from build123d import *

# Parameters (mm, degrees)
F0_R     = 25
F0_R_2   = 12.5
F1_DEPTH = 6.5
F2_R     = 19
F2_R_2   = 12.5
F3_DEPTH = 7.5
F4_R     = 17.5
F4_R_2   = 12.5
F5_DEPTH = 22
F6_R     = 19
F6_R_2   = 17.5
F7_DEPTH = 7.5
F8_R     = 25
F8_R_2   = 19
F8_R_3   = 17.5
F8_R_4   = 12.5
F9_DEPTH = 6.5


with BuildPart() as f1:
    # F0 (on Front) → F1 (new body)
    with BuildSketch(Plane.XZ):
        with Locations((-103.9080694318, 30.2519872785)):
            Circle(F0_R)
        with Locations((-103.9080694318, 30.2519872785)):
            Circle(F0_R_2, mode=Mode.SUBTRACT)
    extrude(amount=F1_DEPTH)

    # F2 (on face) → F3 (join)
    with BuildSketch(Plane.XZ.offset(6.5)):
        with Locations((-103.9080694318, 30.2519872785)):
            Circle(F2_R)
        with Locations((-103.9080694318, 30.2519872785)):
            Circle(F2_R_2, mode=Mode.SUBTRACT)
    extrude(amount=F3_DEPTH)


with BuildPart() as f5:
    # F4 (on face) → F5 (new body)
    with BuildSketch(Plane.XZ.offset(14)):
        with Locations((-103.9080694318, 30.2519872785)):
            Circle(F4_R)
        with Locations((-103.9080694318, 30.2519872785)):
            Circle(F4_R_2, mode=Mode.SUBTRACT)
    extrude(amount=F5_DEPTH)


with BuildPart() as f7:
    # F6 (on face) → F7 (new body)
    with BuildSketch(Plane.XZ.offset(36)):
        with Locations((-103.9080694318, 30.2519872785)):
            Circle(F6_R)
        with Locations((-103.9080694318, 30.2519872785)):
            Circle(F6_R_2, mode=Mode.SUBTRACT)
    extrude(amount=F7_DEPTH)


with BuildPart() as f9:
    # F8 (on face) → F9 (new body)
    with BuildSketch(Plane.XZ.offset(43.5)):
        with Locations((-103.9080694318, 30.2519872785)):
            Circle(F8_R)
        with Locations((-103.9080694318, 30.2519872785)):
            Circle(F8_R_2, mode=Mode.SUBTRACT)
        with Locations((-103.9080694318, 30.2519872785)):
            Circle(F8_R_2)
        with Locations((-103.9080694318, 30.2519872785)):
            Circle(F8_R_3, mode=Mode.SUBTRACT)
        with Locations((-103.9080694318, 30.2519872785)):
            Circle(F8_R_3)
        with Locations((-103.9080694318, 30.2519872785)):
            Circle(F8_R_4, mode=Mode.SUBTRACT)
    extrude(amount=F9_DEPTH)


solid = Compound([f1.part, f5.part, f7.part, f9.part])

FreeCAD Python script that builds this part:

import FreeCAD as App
import Part
import Sketcher
Q = App.Units.Quantity

doc = App.newDocument("Part")
body = doc.addObject("PartDesign::Body", "Body")

sketch1 = body.newObject("Sketcher::SketchObject", "Sketch")
sketch1.AttachmentSupport = (doc.getObject("XZ_Plane"), [""])
sketch1.MapMode = "FlatFace"
sketch1.addGeometry([
    Part.Circle(App.Vector(-104, 30, 0), App.Vector(0, 0, 1), 25),
    Part.Circle(App.Vector(-104, 30, 0), App.Vector(0, 0, 1), 12),
], False)
sketch1.addConstraint([
    Sketcher.Constraint("Coincident", 1, 3, 0, 3),
    Sketcher.Constraint("Diameter", 0, Q("50 mm")),
    Sketcher.Constraint("Diameter", 1, Q("25 mm")),
    Sketcher.Constraint("DistanceX", 0, 3, -1, 1, Q("103.908069 mm")),
    Sketcher.Constraint("DistanceY", -1, 1, 0, 3, Q("30.251987 mm")),
])
pad1 = body.newObject("PartDesign::Pad", "Pad")
pad1.Profile = sketch1
pad1.Length = 6.5

sketch2 = body.newObject("Sketcher::SketchObject", "Sketch001")
sketch2.AttachmentSupport = (doc.getObject("XZ_Plane"), [""])
sketch2.MapMode = "FlatFace"
sketch2.AttachmentOffset = App.Placement(App.Vector(0, 0, 6.5), App.Rotation())
sketch2.addGeometry([
    Part.Circle(App.Vector(-104, 30, 0), App.Vector(0, 0, 1), 19),
    Part.Circle(App.Vector(-104, 30, 0), App.Vector(0, 0, 1), 12),
], False)
sketch2.addConstraint([
    Sketcher.Constraint("Coincident", 1, 3, 0, 3),
    Sketcher.Constraint("Diameter", 0, Q("38 mm")),
    Sketcher.Constraint("Diameter", 1, Q("25 mm")),
    Sketcher.Constraint("DistanceX", 0, 3, -1, 1, Q("103.908069 mm")),
    Sketcher.Constraint("DistanceY", -1, 1, 0, 3, Q("30.251987 mm")),
])
pad2 = body.newObject("PartDesign::Pad", "Pad001")
pad2.Profile = sketch2
pad2.Length = 7.5
body2 = doc.addObject("PartDesign::Body", "Body001")

sketch3 = body2.newObject("Sketcher::SketchObject", "Sketch002")
sketch3.AttachmentSupport = (doc.getObject("XZ_Plane001"), [""])
sketch3.MapMode = "FlatFace"
sketch3.AttachmentOffset = App.Placement(App.Vector(0, 0, 14), App.Rotation())
sketch3.addGeometry([
    Part.Circle(App.Vector(-104, 30, 0), App.Vector(0, 0, 1), 18),
    Part.Circle(App.Vector(-104, 30, 0), App.Vector(0, 0, 1), 12),
], False)
sketch3.addConstraint([
    Sketcher.Constraint("Coincident", 1, 3, 0, 3),
    Sketcher.Constraint("Diameter", 0, Q("35 mm")),
    Sketcher.Constraint("Diameter", 1, Q("25 mm")),
    Sketcher.Constraint("DistanceX", 0, 3, -1, 1, Q("103.908069 mm")),
    Sketcher.Constraint("DistanceY", -1, 1, 0, 3, Q("30.251987 mm")),
])
pad3 = body2.newObject("PartDesign::Pad", "Pad002")
pad3.Profile = sketch3
pad3.Length = 22
body3 = doc.addObject("PartDesign::Body", "Body002")

sketch4 = body3.newObject("Sketcher::SketchObject", "Sketch003")
sketch4.AttachmentSupport = (doc.getObject("XZ_Plane002"), [""])
sketch4.MapMode = "FlatFace"
sketch4.AttachmentOffset = App.Placement(App.Vector(0, 0, 36), App.Rotation())
sketch4.addGeometry([
    Part.Circle(App.Vector(-104, 30, 0), App.Vector(0, 0, 1), 19),
    Part.Circle(App.Vector(-104, 30, 0), App.Vector(0, 0, 1), 18),
], False)
sketch4.addConstraint([
    Sketcher.Constraint("Coincident", 1, 3, 0, 3),
    Sketcher.Constraint("Diameter", 0, Q("38 mm")),
    Sketcher.Constraint("Diameter", 1, Q("35 mm")),
    Sketcher.Constraint("DistanceX", 0, 3, -1, 1, Q("103.908069 mm")),
    Sketcher.Constraint("DistanceY", -1, 1, 0, 3, Q("30.251987 mm")),
])
pad4 = body3.newObject("PartDesign::Pad", "Pad003")
pad4.Profile = sketch4
pad4.Length = 7.5
body4 = doc.addObject("PartDesign::Body", "Body003")

sketch5 = body4.newObject("Sketcher::SketchObject", "Sketch004")
sketch5.AttachmentSupport = (doc.getObject("XZ_Plane003"), [""])
sketch5.MapMode = "FlatFace"
sketch5.AttachmentOffset = App.Placement(App.Vector(0, 0, 43.5), App.Rotation())
sketch5.addGeometry([
    Part.Circle(App.Vector(-104, 30, 0), App.Vector(0, 0, 1), 25),
    Part.Circle(App.Vector(-104, 30, 0), App.Vector(0, 0, 1), 12),
], False)
sketch5.addConstraint([
    Sketcher.Constraint("Coincident", 1, 3, 0, 3),
    Sketcher.Constraint("Diameter", 0, Q("50 mm")),
    Sketcher.Constraint("Diameter", 1, Q("25 mm")),
    Sketcher.Constraint("DistanceX", 0, 3, -1, 1, Q("103.908069 mm")),
    Sketcher.Constraint("DistanceY", -1, 1, 0, 3, Q("30.251987 mm")),
])
pad5 = body4.newObject("PartDesign::Pad", "Pad004")
pad5.Profile = sketch5
pad5.Length = 6.5

doc.recompute()
